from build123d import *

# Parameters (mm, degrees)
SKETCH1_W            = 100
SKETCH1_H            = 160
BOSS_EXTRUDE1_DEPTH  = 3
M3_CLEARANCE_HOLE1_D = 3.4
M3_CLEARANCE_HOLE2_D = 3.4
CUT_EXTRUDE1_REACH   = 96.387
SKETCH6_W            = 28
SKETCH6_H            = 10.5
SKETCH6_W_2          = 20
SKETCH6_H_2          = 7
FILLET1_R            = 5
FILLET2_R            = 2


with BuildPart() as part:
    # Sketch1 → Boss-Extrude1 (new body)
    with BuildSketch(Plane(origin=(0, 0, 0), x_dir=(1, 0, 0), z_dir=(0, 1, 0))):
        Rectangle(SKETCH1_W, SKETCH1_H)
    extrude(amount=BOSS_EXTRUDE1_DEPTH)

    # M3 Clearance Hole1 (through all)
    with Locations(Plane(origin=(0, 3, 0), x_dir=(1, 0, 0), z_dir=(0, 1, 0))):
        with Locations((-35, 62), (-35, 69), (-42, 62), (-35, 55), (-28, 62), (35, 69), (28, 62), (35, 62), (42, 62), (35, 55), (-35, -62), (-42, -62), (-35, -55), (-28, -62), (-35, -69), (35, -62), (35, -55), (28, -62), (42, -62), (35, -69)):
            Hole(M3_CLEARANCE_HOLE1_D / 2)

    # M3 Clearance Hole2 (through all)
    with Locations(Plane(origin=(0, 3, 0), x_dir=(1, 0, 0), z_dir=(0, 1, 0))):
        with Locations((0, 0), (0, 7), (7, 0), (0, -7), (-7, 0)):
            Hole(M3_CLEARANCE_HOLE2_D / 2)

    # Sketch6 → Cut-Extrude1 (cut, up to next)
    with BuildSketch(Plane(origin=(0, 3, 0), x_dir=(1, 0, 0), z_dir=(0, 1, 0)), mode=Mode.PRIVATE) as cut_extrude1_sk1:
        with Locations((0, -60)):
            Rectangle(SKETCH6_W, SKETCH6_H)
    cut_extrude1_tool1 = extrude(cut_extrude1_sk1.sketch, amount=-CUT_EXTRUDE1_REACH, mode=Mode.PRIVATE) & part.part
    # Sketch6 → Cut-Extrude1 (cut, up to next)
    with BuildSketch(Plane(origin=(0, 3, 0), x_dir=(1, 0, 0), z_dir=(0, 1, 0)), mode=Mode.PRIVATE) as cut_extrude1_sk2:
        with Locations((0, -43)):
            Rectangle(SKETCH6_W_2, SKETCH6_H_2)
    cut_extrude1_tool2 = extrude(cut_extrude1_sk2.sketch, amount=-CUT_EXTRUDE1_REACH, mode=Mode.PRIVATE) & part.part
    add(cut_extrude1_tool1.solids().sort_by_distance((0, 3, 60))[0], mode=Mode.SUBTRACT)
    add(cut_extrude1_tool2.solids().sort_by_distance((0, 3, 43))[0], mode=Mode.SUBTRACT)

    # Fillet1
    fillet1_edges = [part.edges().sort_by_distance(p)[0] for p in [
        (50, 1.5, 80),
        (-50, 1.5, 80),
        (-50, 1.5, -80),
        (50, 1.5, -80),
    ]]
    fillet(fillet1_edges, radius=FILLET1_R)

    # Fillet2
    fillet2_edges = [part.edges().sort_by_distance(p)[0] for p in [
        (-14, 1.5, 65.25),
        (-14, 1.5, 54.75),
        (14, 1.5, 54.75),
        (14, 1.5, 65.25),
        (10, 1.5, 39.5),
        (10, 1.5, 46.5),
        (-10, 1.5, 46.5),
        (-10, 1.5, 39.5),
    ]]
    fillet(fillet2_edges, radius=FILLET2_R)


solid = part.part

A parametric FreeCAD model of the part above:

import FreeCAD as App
import Part
import Sketcher
from FreeCAD import Vector


def edges_at(feature, points):
    """Names of the edges that pass closest to the given points."""
    edges = feature.Shape.Edges
    near = lambda p: min(range(len(edges)), key=lambda i: edges[i].distToShape(Part.Vertex(*p))[0])
    return sorted({f"Edge{near(p) + 1}" for p in points})

doc = App.newDocument("Part")
body = doc.addObject("PartDesign::Body", "Body")

# Sketch on XZ plane
sketch1 = doc.addObject("Sketcher::SketchObject", "Sketch")
body.addObject(sketch1)
sketch1.AttachmentSupport = (doc.XZ_Plane, [""])
sketch1.MapMode = "FlatFace"
sketch1.addGeometry([
    Part.LineSegment(Vector(-50, -80, 0), Vector(-50, 80, 0)),
    Part.LineSegment(Vector(-50, 80, 0), Vector(50, 80, 0)),
    Part.LineSegment(Vector(50, 80, 0), Vector(50, -80, 0)),
    Part.LineSegment(Vector(50, -80, 0), Vector(-50, -80, 0)),
], False)
sketch1.addConstraint([
    Sketcher.Constraint("Coincident", 0, 2, 1, 1),
    Sketcher.Constraint("Coincident", 1, 2, 2, 1),
    Sketcher.Constraint("Coincident", 2, 2, 3, 1),
    Sketcher.Constraint("Coincident", 3, 2, 0, 1),
    Sketcher.Constraint("Vertical", 0),
    Sketcher.Constraint("Horizontal", 1),
    Sketcher.Constraint("Vertical", 2),
    Sketcher.Constraint("Horizontal", 3),
    Sketcher.Constraint("Symmetric", 0, 2, 2, 2, -1, 1),
    Sketcher.Constraint("DistanceX", 1, 1, 1, 2, 100.0),
    Sketcher.Constraint("DistanceY", 0, 1, 0, 2, 160.0),
])
pad1 = doc.addObject("PartDesign::Pad", "Pad")
body.addObject(pad1)
pad1.Profile = sketch1
pad1.Length = 3
pad1.Reversed = True

# Sketch on XZ plane
sketch2 = doc.addObject("Sketcher::SketchObject", "Sketch001")
body.addObject(sketch2)
sketch2.AttachmentSupport = (doc.XZ_Plane, [""])
sketch2.MapMode = "FlatFace"
sketch2.AttachmentOffset = App.Placement(Vector(0, 0, -3), App.Rotation())
sketch2.addGeometry([
    Part.Circle(Vector(-35, -62, 0), Vector(0, 0, 1), 1.7),  # 0
    Part.Circle(Vector(-35, -69, 0), Vector(0, 0, 1), 1.7),  # 1
    Part.Circle(Vector(-42, -62, 0), Vector(0, 0, 1), 1.7),  # 2
    Part.Circle(Vector(-35, -55, 0), Vector(0, 0, 1), 1.7),  # 3
    Part.Circle(Vector(-28, -62, 0), Vector(0, 0, 1), 1.7),  # 4
    Part.Circle(Vector(35, -69, 0), Vector(0, 0, 1), 1.7),  # 5
    Part.Circle(Vector(28, -62, 0), Vector(0, 0, 1), 1.7),  # 6
    Part.Circle(Vector(35, -62, 0), Vector(0, 0, 1), 1.7),  # 7
    Part.Circle(Vector(42, -62, 0), Vector(0, 0, 1), 1.7),  # 8
    Part.Circle(Vector(35, -55, 0), Vector(0, 0, 1), 1.7),  # 9
    Part.Circle(Vector(-35, 62, 0), Vector(0, 0, 1), 1.7),  # 10
    Part.Circle(Vector(-42, 62, 0), Vector(0, 0, 1), 1.7),  # 11
    Part.Circle(Vector(-35, 55, 0), Vector(0, 0, 1), 1.7),  # 12
    Part.Circle(Vector(-28, 62, 0), Vector(0, 0, 1), 1.7),  # 13
    Part.Circle(Vector(-35, 69, 0), Vector(0, 0, 1), 1.7),  # 14
    Part.Circle(Vector(35, 62, 0), Vector(0, 0, 1), 1.7),  # 15
    Part.Circle(Vector(35, 55, 0), Vector(0, 0, 1), 1.7),  # 16
    Part.Circle(Vector(28, 62, 0), Vector(0, 0, 1), 1.7),  # 17
    Part.Circle(Vector(42, 62, 0), Vector(0, 0, 1), 1.7),  # 18
    Part.Circle(Vector(35, 69, 0), Vector(0, 0, 1), 1.7),  # 19
], False)
sketch2.addConstraint([
    Sketcher.Constraint("Equal", 0, 1),
    Sketcher.Constraint("Equal", 1, 2),
    Sketcher.Constraint("Equal", 2, 3),
    Sketcher.Constraint("Equal", 3, 4),
    Sketcher.Constraint("Equal", 4, 5),
    Sketcher.Constraint("Equal", 5, 6),
    Sketcher.Constraint("Equal", 6, 7),
    Sketcher.Constraint("Equal", 7, 8),
    Sketcher.Constraint("Equal", 8, 9),
    Sketcher.Constraint("Equal", 9, 10),
    Sketcher.Constraint("Equal", 10, 11),
    Sketcher.Constraint("Equal", 11, 12),
    Sketcher.Constraint("Equal", 12, 13),
    Sketcher.Constraint("Equal", 13, 14),
    Sketcher.Constraint("Equal", 14, 15),
    Sketcher.Constraint("Equal", 15, 16),
    Sketcher.Constraint("Equal", 16, 17),
    Sketcher.Constraint("Equal", 17, 18),
    Sketcher.Constraint("Equal", 18, 19),
    Sketcher.Constraint("Symmetric", 7, 3, 10, 3, -1, 1),
    Sketcher.Constraint("Symmetric", 8, 3, 11, 3, -1, 1),
    Sketcher.Constraint("Symmetric", 9, 3, 12, 3, -1, 1),
    Sketcher.Constraint("Symmetric", 6, 3, 13, 3, -1, 1),
    Sketcher.Constraint("Symmetric", 5, 3, 14, 3, -1, 1),
    Sketcher.Constraint("Symmetric", 0, 3, 15, 3, -1, 1),
    Sketcher.Constraint("Symmetric", 3, 3, 16, 3, -1, 1),
    Sketcher.Constraint("Symmetric", 4, 3, 17, 3, -1, 1),
    Sketcher.Constraint("Symmetric", 2, 3, 18, 3, -1, 1),
    Sketcher.Constraint("Symmetric", 1, 3, 19, 3, -1, 1),
    Sketcher.Constraint("Symmetric", 1, 3, 5, 3, -2),
    Sketcher.Constraint("Symmetric", 4, 3, 6, 3, -2),
    Sketcher.Constraint("Symmetric", 0, 3, 7, 3, -2),
    Sketcher.Constraint("Symmetric", 2, 3, 8, 3, -2),
    Sketcher.Constraint("Symmetric", 3, 3, 9, 3, -2),
    Sketcher.Constraint("Horizontal", 0, 3, 2, 3),
    Sketcher.Constraint("Horizontal", 2, 3, 4, 3),
    Sketcher.Constraint("Vertical", 0, 3, 1, 3),
    Sketcher.Constraint("Vertical", 1, 3, 3, 3),
    Sketcher.Constraint("Diameter", 0, 3.4),
    Sketcher.Constraint("DistanceX", 0, 3, -1, 1, 35.0),
    Sketcher.Constraint("DistanceY", 0, 3, -1, 1, 62.0),
    Sketcher.Constraint("DistanceY", 1, 3, -1, 1, 69.0),
    Sketcher.Constraint("DistanceX", 2, 3, -1, 1, 42.0),
    Sketcher.Constraint("DistanceY", 3, 3, -1, 1, 55.0),
    Sketcher.Constraint("DistanceX", 4, 3, -1, 1, 28.0),
])
doc.recompute()
hole = doc.addObject("PartDesign::Hole", "Hole")
body.addObject(hole)
hole.Profile = sketch2
hole.ThreadType = "None"
hole.Diameter = 3.4
hole.DepthType = "ThroughAll"
hole.Reversed = True

# Sketch on XZ plane
sketch3 = doc.addObject("Sketcher::SketchObject", "Sketch002")
body.addObject(sketch3)
sketch3.AttachmentSupport = (doc.XZ_Plane, [""])
sketch3.MapMode = "FlatFace"
sketch3.AttachmentOffset = App.Placement(Vector(0, 0, -3), App.Rotation())
sketch3.addGeometry([
    Part.Circle(Vector(0, 0, 0), Vector(0, 0, 1), 1.7),  # 0
    Part.Circle(Vector(0, -7, 0), Vector(0, 0, 1), 1.7),  # 1
    Part.Circle(Vector(7, 0, 0), Vector(0, 0, 1), 1.7),  # 2
    Part.Circle(Vector(0, 7, 0), Vector(0, 0, 1), 1.7),  # 3
    Part.Circle(Vector(-7, 0, 0), Vector(0, 0, 1), 1.7),  # 4
], False)
sketch3.addConstraint([
    Sketcher.Constraint("Coincident", 0, 3, -1, 1),
    Sketcher.Constraint("Equal", 0, 1),
    Sketcher.Constraint("Equal", 1, 2),
    Sketcher.Constraint("Equal", 2, 3),
    Sketcher.Constraint("Equal", 3, 4),
    Sketcher.Constraint("Symmetric", 1, 3, 3, 3, -1, 1),
    Sketcher.Constraint("Symmetric", 2, 3, 4, 3, -1, 1),
    Sketcher.Constraint("PointOnObject", 1, 3, -2),
    Sketcher.Constraint("PointOnObject", 2, 3, -1),
    Sketcher.Constraint("Diameter", 0, 3.4),
    Sketcher.Constraint("DistanceY", 1, 3, -1, 1, 7.0),
    Sketcher.Constraint("DistanceX", -1, 1, 2, 3, 7.0),
])
doc.recompute()
hole2 = doc.addObject("PartDesign::Hole", "Hole001")
body.addObject(hole2)
hole2.Profile = sketch3
hole2.ThreadType = "None"
hole2.Diameter = 3.4
hole2.DepthType = "ThroughAll"
hole2.Reversed = True

# Sketch on XZ plane
sketch4 = doc.addObject("Sketcher::SketchObject", "Sketch003")
body.addObject(sketch4)
sketch4.AttachmentSupport = (doc.XZ_Plane, [""])
sketch4.MapMode = "FlatFace"
sketch4.AttachmentOffset = App.Placement(Vector(0, 0, -3), App.Rotation())
sketch4.addGeometry([
    Part.LineSegment(Vector(-14, 54.75, 0), Vector(-14, 65.25, 0)),
    Part.LineSegment(Vector(-14, 65.25, 0), Vector(14, 65.25, 0)),
    Part.LineSegment(Vector(14, 65.25, 0), Vector(14, 54.75, 0)),
    Part.LineSegment(Vector(14, 54.75, 0), Vector(-14, 54.75, 0)),
], False)
sketch4.addConstraint([
    Sketcher.Constraint("Coincident", 0, 2, 1, 1),
    Sketcher.Constraint("Coincident", 1, 2, 2, 1),
    Sketcher.Constraint("Coincident", 2, 2, 3, 1),
    Sketcher.Constraint("Coincident", 3, 2, 0, 1),
    Sketcher.Constraint("Vertical", 0),
    Sketcher.Constraint("Horizontal", 1),
    Sketcher.Constraint("Vertical", 2),
    Sketcher.Constraint("Horizontal", 3),
    Sketcher.Constraint("DistanceX", 1, 1, 1, 2, 28.0),
    Sketcher.Constraint("DistanceY", 0, 1, 0, 2, 10.5),
    Sketcher.Constraint("DistanceX", 0, 2, -1, 1, 14.0),
    Sketcher.Constraint("DistanceY", -1, 1, 0, 2, 65.25),
])
pocket1 = doc.addObject("PartDesign::Pocket", "Pocket")
body.addObject(pocket1)
pocket1.Profile = sketch4
pocket1.Type = "UpToFirst"
pocket1.Reversed = True

# Sketch on XZ plane
sketch5 = doc.addObject("Sketcher::SketchObject", "Sketch004")
body.addObject(sketch5)
sketch5.AttachmentSupport = (doc.XZ_Plane, [""])
sketch5.MapMode = "FlatFace"
sketch5.AttachmentOffset = App.Placement(Vector(0, 0, -3), App.Rotation())
sketch5.addGeometry([
    Part.LineSegment(Vector(-10, 39.5, 0), Vector(-10, 46.5, 0)),
    Part.LineSegment(Vector(-10, 46.5, 0), Vector(10, 46.5, 0)),
    Part.LineSegment(Vector(10, 46.5, 0), Vector(10, 39.5, 0)),
    Part.LineSegment(Vector(10, 39.5, 0), Vector(-10, 39.5, 0)),
], False)
sketch5.addConstraint([
    Sketcher.Constraint("Coincident", 0, 2, 1, 1),
    Sketcher.Constraint("Coincident", 1, 2, 2, 1),
    Sketcher.Constraint("Coincident", 2, 2, 3, 1),
    Sketcher.Constraint("Coincident", 3, 2, 0, 1),
    Sketcher.Constraint("Vertical", 0),
    Sketcher.Constraint("Horizontal", 1),
    Sketcher.Constraint("Vertical", 2),
    Sketcher.Constraint("Horizontal", 3),
    Sketcher.Constraint("DistanceX", 1, 1, 1, 2, 20.0),
    Sketcher.Constraint("DistanceY", 0, 1, 0, 2, 7.0),
    Sketcher.Constraint("DistanceX", 0, 2, -1, 1, 10.0),
    Sketcher.Constraint("DistanceY", -1, 1, 0, 2, 46.5),
])
pocket2 = doc.addObject("PartDesign::Pocket", "Pocket001")
body.addObject(pocket2)
pocket2.Profile = sketch5
pocket2.Type = "UpToFirst"
pocket2.Reversed = True
doc.recompute()

fillet = doc.addObject("PartDesign::Fillet", "Fillet")
body.addObject(fillet)
fillet.Base = (pocket2, edges_at(pocket2, [
    (50, 1.5, 80),
    (-50, 1.5, 80),
    (-50, 1.5, -80),
    (50, 1.5, -80),
]))
fillet.Radius = 5
doc.recompute()

fillet2 = doc.addObject("PartDesign::Fillet", "Fillet001")
body.addObject(fillet2)
fillet2.Base = (fillet, edges_at(fillet, [
    (-14, 1.5, 65.25),
    (-14, 1.5, 54.75),
    (14, 1.5, 54.75),
    (14, 1.5, 65.25),
    (10, 1.5, 39.5),
    (10, 1.5, 46.5),
    (-10, 1.5, 46.5),
    (-10, 1.5, 39.5),
]))
fillet2.Radius = 2

doc.recompute()
